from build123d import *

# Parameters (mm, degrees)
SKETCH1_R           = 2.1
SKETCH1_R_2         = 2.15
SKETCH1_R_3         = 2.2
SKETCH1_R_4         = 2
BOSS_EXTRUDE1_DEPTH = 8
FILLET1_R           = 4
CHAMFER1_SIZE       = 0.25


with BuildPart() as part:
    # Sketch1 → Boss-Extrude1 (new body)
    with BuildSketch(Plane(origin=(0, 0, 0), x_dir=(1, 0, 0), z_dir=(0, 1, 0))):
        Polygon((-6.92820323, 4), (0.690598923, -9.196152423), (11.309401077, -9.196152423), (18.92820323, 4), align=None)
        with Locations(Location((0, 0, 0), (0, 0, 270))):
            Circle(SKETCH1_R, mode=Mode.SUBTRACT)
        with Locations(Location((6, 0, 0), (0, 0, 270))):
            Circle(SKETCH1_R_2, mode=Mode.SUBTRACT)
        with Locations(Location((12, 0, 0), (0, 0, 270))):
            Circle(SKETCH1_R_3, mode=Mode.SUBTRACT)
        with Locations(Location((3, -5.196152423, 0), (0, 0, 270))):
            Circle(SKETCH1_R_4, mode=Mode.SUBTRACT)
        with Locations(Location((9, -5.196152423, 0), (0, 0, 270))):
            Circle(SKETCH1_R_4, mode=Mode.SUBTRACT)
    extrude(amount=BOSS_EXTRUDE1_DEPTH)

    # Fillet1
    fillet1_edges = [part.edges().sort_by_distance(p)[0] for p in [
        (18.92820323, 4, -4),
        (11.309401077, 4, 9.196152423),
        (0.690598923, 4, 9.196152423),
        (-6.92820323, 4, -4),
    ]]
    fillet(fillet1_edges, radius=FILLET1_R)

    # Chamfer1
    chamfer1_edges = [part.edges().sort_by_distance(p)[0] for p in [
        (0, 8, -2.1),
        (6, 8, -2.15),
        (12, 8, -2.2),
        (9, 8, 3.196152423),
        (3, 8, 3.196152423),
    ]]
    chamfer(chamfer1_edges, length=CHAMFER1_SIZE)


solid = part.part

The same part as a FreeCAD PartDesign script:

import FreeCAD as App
import Part
import Sketcher
from FreeCAD import Vector
Q = App.Units.Quantity


def edges_at(feature, points):
    """Names of the edges that pass closest to the given points."""
    edges = feature.Shape.Edges
    near = lambda p: min(range(len(edges)), key=lambda i: edges[i].distToShape(Part.Vertex(*p))[0])
    return sorted({f"Edge{near(p) + 1}" for p in points})

doc = App.newDocument("Part")
params = doc.addObject("Spreadsheet::Sheet", "Params")
for row, (alias, value) in enumerate([
    ("sketch1_diameter", "4 mm"),
    ("sketch1_diameter2", "4.2 mm"),
    ("sketch1_diameter3", "4.3 mm"),
    ("sketch1_diameter4", "4.4 mm"),
    ("pad1_length", "8 mm"),
    ("fillet_radius", "4 mm"),
    ("chamfer_size", "0.25 mm"),
], start=1):
    params.set(f"A{row}", alias)
    params.set(f"B{row}", "=" + value)
    params.setAlias(f"B{row}", alias)

body = doc.addObject("PartDesign::Body", "Body")

# Sketch on XZ plane
sketch1 = body.newObject("Sketcher::SketchObject", "Sketch")
sketch1.AttachmentSupport = (doc.getObject("XZ_Plane"), [""])
sketch1.MapMode = "FlatFace"
sketch1.addGeometry([
    Part.LineSegment(Vector(-6.9, -4, 0), Vector(0.7, 9.2, 0)),  # 0
    Part.LineSegment(Vector(0.7, 9.2, 0), Vector(11.3, 9.2, 0)),  # 1
    Part.LineSegment(Vector(11.3, 9.2, 0), Vector(18.9, -4, 0)),  # 2
    Part.LineSegment(Vector(18.9, -4, 0), Vector(-6.9, -4, 0)),  # 3
    Part.Circle(Vector(3, 5.2, 0), Vector(0, 0, 1), 2),  # 4
    Part.Circle(Vector(9, 5.2, 0), Vector(0, 0, 1), 2),  # 5
    Part.Circle(Vector(0, 0, 0), Vector(0, 0, 1), 2.1),  # 6
    Part.Circle(Vector(6, 0, 0), Vector(0, 0, 1), 2.1),  # 7
    Part.Circle(Vector(12, 0, 0), Vector(0, 0, 1), 2.2),  # 8
], False)
sketch1.addConstraint([
    Sketcher.Constraint("Coincident", 0, 2, 1, 1),
    Sketcher.Constraint("Coincident", 1, 2, 2, 1),
    Sketcher.Constraint("Coincident", 2, 2, 3, 1),
    Sketcher.Constraint("Coincident", 3, 2, 0, 1),
    Sketcher.Constraint("Horizontal", 1),
    Sketcher.Constraint("Horizontal", 3),
    Sketcher.Constraint("Coincident", 6, 3, -1, 1),
    Sketcher.Constraint("Equal", 4, 5),
    Sketcher.Constraint("PointOnObject", 7, 3, -1),
    Sketcher.Constraint("PointOnObject", 8, 3, -1),
    Sketcher.Constraint("Horizontal", 4, 3, 5, 3),
    Sketcher.Constraint("Equal", 0, 2),
    Sketcher.Constraint("Diameter", 4, 4.0),
    Sketcher.Constraint("Diameter", 6, 4.2),
    Sketcher.Constraint("Diameter", 7, 4.3),
    Sketcher.Constraint("Diameter", 8, 4.4),
    Sketcher.Constraint("Angle", 0, Q("60 deg")),
    Sketcher.Constraint("DistanceX", -1, 1, 4, 3, 3.0),
    Sketcher.Constraint("DistanceX", -1, 1, 5, 3, 9.0),
    Sketcher.Constraint("DistanceX", -1, 1, 7, 3, 6.0),
    Sketcher.Constraint("DistanceX", -1, 1, 8, 3, 12.0),
    Sketcher.Constraint("DistanceY", 2, 2, -1, 1, 4.0),
    Sketcher.Constraint("DistanceY", 4, 3, 0, 2, 4.0),
    Sketcher.Constraint("DistanceX", -1, 1, 0, 2, 0.690599),
    Sketcher.Constraint("DistanceX", -1, 1, 1, 2, 11.309401),
    Sketcher.Constraint("DistanceX", 3, 2, 3, 1, 25.856406),
])
sketch1.setExpression("Constraints[12]", "Params.sketch1_diameter")
sketch1.setExpression("Constraints[13]", "Params.sketch1_diameter2")
sketch1.setExpression("Constraints[14]", "Params.sketch1_diameter3")
sketch1.setExpression("Constraints[15]", "Params.sketch1_diameter4")
pad1 = body.newObject("PartDesign::Pad", "Pad")
pad1.Profile = sketch1
pad1.setExpression("Length", "Params.pad1_length")
pad1.Reversed = True
doc.recompute()

fillet = body.newObject("PartDesign::Fillet", "Fillet")
fillet.Base = (pad1, edges_at(pad1, [
    (18.928, 4, -4),
    (11.309, 4, 9.196),
    (0.691, 4, 9.196),
    (-6.928, 4, -4),
]))
fillet.setExpression("Radius", "Params.fillet_radius")
doc.recompute()

chamfer = body.newObject("PartDesign::Chamfer", "Chamfer")
chamfer.Base = (fillet, edges_at(fillet, [
    (0, 8, -2.1),
    (6, 8, -2.15),
    (12, 8, -2.2),
    (9, 8, 3.196),
    (3, 8, 3.196),
]))
chamfer.setExpression("Size", "Params.chamfer_size")

doc.recompute()
